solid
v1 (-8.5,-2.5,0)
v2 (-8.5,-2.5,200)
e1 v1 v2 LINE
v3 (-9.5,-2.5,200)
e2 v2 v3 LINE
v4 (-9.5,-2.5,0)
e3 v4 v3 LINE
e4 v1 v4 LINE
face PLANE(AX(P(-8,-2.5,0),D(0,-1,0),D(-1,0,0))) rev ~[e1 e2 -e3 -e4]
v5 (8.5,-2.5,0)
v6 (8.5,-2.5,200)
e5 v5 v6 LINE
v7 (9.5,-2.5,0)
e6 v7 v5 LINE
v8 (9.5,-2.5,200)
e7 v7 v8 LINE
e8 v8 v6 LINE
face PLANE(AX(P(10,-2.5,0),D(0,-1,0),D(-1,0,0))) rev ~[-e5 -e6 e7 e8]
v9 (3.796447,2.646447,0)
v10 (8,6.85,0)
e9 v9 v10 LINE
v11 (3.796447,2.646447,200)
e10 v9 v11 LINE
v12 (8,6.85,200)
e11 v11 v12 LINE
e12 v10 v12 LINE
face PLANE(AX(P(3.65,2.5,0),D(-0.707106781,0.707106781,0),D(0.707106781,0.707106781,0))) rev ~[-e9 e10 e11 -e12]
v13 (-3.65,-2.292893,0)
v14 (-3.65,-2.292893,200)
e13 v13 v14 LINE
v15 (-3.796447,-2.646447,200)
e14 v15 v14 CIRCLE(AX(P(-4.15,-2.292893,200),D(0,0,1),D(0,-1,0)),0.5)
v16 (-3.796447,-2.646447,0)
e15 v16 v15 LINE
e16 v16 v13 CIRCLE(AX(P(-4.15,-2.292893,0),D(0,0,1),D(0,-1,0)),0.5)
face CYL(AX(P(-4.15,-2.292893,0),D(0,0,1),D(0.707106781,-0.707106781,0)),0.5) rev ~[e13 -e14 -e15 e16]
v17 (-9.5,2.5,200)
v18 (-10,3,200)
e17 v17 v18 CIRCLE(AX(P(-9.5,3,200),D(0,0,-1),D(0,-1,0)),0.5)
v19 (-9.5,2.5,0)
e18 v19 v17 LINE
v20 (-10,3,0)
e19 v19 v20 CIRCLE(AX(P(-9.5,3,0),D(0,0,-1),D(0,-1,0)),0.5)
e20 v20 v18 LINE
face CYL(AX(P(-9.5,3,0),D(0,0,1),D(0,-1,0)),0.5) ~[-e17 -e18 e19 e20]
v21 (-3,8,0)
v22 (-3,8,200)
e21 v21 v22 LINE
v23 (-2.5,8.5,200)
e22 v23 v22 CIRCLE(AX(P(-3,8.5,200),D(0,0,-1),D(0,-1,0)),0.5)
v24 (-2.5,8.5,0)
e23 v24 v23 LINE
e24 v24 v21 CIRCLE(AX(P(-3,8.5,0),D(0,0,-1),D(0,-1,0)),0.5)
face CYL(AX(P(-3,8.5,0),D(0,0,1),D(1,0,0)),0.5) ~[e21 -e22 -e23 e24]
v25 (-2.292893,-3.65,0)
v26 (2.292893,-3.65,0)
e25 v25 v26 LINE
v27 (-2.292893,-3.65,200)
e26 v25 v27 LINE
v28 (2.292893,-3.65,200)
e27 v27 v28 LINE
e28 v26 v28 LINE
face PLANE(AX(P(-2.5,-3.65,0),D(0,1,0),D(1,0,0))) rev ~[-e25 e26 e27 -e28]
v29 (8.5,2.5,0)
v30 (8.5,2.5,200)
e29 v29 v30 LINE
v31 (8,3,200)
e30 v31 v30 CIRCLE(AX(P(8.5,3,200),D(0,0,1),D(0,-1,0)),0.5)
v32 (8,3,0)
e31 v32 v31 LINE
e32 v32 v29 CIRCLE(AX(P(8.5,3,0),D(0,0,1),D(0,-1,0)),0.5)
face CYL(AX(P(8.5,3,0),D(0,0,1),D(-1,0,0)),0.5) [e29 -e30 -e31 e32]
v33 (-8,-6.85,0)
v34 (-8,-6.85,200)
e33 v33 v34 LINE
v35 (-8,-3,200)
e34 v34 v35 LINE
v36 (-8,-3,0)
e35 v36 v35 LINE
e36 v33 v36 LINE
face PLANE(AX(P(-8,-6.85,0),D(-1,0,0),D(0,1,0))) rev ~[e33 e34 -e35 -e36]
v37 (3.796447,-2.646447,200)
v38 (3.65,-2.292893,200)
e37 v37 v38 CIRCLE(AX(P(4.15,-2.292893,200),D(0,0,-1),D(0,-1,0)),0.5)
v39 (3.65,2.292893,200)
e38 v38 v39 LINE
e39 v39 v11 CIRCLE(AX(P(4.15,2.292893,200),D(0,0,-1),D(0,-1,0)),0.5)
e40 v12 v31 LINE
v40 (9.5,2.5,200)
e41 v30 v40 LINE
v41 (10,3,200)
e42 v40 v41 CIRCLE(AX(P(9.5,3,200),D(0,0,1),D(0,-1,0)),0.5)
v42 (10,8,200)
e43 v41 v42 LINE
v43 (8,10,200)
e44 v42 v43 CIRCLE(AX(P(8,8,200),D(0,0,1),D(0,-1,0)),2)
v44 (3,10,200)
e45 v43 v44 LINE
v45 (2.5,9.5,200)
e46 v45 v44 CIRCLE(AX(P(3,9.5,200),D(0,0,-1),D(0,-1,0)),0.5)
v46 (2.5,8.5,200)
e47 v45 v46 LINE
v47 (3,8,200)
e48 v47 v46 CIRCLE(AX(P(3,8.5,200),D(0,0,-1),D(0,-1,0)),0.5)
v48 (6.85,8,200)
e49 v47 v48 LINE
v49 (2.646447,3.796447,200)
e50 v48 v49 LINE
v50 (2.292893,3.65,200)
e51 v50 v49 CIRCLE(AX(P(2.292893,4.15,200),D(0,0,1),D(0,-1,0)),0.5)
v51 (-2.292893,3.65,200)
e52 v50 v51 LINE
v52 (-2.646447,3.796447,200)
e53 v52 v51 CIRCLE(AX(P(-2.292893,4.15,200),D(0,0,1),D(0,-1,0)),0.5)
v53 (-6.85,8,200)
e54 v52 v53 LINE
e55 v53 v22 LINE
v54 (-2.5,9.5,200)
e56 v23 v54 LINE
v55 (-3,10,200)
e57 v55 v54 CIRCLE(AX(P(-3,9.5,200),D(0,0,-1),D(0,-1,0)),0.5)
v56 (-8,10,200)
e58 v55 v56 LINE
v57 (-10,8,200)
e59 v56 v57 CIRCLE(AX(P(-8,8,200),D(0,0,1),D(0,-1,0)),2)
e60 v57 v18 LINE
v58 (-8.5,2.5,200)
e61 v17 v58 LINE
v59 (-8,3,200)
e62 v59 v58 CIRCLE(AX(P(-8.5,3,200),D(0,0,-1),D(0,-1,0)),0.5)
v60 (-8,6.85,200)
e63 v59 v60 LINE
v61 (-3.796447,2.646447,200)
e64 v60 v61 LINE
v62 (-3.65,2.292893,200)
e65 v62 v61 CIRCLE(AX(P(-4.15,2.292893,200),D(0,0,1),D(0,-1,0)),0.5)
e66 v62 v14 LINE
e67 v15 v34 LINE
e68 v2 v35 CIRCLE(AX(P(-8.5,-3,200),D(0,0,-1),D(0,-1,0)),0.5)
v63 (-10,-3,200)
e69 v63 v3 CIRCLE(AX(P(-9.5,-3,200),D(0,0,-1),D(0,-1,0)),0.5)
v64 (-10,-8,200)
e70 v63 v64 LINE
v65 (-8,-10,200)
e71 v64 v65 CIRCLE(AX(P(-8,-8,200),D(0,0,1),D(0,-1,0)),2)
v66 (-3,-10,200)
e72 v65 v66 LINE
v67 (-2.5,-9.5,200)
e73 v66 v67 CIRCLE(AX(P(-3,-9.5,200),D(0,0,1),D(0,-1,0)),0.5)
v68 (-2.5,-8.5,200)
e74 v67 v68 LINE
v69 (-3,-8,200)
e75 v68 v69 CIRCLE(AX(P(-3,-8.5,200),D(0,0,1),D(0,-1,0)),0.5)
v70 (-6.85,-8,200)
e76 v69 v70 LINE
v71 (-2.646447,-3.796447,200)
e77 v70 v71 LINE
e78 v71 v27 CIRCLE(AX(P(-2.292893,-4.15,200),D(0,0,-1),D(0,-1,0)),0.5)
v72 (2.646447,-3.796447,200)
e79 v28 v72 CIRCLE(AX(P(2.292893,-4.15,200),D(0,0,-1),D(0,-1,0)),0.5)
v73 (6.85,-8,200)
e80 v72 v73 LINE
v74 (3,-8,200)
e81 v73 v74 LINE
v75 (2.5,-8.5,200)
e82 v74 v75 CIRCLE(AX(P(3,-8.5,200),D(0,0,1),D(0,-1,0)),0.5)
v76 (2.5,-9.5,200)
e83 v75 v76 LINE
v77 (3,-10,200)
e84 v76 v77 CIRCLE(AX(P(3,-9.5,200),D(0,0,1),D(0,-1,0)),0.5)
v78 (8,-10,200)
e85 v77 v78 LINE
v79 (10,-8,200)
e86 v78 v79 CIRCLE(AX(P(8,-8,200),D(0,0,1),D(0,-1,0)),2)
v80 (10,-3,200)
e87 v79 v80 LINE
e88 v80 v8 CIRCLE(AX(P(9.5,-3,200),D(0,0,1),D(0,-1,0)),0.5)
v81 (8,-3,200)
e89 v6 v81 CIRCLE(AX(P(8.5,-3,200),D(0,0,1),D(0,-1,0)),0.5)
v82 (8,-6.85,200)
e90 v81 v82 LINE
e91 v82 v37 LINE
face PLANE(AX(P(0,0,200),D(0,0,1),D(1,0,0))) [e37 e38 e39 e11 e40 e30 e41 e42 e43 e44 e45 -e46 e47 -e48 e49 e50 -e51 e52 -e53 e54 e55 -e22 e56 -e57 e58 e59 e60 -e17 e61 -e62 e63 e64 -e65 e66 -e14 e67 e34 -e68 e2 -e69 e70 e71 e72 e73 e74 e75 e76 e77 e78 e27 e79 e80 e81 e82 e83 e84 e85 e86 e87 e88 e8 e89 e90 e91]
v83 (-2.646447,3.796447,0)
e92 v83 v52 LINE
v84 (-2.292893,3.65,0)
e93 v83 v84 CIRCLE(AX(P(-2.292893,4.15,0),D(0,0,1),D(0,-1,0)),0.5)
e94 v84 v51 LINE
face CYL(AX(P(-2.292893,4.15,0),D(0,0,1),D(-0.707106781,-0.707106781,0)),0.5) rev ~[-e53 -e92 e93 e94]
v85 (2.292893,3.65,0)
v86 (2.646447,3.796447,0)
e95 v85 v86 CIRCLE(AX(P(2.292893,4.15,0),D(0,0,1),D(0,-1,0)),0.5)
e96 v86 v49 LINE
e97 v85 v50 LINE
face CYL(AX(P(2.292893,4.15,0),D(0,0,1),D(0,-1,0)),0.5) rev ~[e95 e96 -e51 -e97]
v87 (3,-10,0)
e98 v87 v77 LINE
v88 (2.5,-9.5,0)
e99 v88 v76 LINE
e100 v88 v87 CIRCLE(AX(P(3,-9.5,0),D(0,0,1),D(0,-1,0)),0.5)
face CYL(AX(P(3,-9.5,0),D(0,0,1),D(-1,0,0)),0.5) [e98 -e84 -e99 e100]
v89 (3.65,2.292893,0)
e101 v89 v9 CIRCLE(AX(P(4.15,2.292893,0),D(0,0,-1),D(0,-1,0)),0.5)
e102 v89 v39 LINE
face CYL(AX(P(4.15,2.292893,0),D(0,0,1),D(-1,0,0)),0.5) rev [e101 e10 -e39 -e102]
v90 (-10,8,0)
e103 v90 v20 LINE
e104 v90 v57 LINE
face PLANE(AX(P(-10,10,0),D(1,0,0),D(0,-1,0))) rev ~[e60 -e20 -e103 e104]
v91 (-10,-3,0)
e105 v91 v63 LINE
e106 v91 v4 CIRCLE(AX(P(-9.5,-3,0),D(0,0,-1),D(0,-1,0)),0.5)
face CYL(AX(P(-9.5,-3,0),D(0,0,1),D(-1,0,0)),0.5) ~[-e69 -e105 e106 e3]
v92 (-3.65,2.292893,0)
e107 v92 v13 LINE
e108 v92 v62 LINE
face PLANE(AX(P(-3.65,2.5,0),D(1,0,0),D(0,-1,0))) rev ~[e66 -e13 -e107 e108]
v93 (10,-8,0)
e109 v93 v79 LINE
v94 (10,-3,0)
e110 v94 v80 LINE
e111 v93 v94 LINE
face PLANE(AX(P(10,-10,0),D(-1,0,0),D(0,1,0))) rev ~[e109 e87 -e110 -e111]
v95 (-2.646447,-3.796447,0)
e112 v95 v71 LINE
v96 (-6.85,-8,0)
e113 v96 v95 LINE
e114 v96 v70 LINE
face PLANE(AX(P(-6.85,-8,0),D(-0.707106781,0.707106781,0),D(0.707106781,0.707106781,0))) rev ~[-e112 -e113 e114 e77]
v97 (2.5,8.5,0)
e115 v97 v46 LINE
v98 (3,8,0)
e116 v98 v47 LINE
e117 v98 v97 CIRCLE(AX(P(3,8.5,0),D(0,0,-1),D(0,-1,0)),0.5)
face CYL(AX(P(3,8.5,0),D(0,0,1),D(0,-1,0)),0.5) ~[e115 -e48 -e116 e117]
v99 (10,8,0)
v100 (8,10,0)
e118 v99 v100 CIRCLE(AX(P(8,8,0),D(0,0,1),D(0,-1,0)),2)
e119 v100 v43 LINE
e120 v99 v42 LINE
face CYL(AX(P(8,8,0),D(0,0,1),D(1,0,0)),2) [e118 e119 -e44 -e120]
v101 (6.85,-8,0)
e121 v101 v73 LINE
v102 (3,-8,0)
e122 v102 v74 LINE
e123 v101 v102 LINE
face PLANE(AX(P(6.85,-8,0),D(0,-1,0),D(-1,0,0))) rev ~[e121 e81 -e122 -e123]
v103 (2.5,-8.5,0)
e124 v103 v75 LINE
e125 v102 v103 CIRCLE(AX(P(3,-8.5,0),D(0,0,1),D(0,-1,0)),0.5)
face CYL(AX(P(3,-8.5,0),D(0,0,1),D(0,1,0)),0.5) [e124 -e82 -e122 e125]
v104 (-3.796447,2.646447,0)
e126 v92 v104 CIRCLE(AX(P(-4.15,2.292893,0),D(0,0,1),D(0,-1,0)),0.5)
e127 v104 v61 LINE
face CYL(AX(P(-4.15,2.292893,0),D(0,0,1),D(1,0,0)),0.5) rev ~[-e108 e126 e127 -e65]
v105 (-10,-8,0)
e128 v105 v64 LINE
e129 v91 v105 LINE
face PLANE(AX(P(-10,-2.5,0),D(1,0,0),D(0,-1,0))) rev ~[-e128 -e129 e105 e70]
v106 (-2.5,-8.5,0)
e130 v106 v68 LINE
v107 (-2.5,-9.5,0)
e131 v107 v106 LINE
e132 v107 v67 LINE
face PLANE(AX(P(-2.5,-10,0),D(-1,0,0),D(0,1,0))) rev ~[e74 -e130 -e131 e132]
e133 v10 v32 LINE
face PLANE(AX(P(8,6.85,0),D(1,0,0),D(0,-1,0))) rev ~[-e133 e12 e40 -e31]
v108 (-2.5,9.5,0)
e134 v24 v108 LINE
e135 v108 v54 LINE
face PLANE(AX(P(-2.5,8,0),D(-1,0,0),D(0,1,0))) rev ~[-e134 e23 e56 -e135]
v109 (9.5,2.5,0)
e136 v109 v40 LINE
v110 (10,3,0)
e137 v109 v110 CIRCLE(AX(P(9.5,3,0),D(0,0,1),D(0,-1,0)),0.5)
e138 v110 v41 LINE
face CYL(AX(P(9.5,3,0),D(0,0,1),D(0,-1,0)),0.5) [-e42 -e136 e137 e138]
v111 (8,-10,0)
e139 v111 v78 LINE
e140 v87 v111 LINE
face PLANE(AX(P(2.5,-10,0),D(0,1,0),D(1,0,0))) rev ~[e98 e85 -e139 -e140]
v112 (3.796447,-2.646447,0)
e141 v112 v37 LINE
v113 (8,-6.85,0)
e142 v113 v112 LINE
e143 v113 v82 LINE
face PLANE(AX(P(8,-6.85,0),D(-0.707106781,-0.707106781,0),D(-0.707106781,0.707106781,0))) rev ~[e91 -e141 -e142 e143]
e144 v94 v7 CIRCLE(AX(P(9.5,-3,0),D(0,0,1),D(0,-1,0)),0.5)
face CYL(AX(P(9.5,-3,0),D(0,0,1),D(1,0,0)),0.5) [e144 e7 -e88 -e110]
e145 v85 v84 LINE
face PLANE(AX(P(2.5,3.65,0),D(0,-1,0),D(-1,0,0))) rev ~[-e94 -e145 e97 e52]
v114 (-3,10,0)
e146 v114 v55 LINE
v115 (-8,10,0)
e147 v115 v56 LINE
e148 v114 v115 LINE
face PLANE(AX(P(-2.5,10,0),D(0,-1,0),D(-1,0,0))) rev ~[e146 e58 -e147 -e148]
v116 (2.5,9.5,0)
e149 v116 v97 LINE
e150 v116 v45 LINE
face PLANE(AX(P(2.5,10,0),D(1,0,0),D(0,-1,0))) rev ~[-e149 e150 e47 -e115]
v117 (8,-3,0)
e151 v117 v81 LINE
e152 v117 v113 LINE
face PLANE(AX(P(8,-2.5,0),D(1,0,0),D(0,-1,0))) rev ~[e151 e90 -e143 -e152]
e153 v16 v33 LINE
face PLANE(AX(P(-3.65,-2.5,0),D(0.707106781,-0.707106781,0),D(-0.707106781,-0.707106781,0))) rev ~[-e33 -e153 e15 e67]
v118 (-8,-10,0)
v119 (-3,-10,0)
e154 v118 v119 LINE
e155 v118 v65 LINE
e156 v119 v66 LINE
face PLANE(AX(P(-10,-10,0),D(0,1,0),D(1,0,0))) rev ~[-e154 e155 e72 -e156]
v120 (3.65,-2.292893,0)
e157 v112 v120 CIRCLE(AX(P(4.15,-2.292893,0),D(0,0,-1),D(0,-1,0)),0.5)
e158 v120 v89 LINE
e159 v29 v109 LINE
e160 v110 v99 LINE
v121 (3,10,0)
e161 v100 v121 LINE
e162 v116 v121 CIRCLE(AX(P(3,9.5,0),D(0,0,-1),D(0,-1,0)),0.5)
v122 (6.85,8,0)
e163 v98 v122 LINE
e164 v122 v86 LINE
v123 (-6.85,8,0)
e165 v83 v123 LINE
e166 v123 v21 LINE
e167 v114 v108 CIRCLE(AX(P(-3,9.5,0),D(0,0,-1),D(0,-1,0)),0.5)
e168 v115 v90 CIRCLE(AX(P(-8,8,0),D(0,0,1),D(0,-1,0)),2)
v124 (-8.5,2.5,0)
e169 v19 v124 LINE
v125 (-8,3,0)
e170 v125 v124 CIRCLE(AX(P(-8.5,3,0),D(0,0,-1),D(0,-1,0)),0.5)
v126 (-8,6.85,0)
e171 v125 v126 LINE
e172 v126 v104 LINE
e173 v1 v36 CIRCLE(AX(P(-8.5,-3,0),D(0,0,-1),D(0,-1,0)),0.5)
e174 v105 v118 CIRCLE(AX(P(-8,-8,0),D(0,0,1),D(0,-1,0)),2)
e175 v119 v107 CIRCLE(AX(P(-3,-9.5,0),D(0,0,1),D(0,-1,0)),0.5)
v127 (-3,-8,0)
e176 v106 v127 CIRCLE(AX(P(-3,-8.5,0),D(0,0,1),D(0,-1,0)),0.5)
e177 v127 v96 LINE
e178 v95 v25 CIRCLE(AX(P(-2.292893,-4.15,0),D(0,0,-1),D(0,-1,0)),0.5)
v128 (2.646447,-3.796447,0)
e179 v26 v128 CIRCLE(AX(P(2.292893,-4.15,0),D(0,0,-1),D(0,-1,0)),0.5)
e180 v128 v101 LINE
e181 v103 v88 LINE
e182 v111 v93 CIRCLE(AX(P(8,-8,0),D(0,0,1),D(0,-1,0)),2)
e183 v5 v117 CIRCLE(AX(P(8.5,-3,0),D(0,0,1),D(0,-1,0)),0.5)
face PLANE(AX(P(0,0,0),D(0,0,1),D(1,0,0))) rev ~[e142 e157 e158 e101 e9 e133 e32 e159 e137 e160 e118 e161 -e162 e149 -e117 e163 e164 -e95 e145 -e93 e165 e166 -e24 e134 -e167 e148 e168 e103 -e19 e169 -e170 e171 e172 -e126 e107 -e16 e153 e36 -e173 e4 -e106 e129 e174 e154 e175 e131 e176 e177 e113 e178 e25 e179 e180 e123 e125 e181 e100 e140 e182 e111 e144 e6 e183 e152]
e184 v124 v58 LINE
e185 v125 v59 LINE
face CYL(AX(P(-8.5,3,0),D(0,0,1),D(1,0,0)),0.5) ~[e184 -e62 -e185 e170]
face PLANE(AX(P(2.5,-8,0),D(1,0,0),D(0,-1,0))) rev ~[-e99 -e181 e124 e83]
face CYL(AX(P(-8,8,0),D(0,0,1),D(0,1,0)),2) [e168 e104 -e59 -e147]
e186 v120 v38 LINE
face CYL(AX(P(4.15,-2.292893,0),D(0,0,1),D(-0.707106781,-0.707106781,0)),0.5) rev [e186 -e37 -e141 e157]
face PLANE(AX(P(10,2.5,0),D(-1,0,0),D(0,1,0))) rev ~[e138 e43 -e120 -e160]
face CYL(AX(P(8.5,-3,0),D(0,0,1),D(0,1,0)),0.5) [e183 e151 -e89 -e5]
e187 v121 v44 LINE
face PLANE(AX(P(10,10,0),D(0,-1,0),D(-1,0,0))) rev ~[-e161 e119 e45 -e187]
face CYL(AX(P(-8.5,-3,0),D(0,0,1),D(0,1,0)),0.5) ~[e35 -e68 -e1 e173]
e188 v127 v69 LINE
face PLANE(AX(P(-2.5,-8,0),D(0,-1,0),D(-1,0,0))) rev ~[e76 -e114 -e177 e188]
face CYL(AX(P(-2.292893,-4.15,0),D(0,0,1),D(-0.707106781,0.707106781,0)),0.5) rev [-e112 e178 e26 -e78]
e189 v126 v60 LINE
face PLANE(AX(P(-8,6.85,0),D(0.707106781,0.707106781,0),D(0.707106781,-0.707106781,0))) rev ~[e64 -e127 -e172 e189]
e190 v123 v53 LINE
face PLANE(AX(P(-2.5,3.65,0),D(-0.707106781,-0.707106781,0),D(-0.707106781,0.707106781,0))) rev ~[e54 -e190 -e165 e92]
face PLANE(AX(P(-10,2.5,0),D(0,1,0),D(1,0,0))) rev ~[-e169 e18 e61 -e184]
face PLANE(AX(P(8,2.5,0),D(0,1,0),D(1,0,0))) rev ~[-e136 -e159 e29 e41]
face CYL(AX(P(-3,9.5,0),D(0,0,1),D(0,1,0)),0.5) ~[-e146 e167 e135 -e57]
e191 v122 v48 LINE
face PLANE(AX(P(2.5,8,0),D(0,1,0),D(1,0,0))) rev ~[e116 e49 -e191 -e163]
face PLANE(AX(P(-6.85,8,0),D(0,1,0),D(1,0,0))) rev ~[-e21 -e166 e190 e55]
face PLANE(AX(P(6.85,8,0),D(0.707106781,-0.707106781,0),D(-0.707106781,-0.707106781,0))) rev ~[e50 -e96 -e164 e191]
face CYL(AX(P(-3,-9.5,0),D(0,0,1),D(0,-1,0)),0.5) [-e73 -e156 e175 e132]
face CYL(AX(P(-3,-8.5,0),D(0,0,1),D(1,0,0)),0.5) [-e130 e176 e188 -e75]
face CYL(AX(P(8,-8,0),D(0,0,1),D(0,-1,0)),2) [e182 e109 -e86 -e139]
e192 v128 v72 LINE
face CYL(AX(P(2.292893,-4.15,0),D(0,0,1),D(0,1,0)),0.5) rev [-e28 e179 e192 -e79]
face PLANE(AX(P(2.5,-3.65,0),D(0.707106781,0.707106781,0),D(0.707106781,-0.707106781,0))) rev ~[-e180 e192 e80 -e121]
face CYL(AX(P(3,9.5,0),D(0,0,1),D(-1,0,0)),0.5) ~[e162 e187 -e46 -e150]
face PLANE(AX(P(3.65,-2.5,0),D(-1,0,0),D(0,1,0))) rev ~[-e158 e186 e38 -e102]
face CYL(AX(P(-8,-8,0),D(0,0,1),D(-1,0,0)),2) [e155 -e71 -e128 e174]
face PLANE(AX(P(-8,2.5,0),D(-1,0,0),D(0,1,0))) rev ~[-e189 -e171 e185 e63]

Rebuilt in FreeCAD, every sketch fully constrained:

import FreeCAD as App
import Part
import Sketcher

V = App.Vector
Q = App.Units.Quantity


def edges_at(feature, points):
    """Names of the edges that pass closest to the given points."""
    edges = feature.Shape.Edges
    near = lambda p: min(range(len(edges)), key=lambda i: edges[i].distToShape(Part.Vertex(*p))[0])
    return sorted({f"Edge{near(p) + 1}" for p in points})


def add_polygon(sketch, points):
    """Adds a closed chain of lines whose ends are joined by coincident constraints."""
    first, n = sketch.GeometryCount, len(points)
    for a, b in zip(points, points[1:] + points[:1]):
        sketch.addGeometry(Part.LineSegment(App.Vector(*a, 0), App.Vector(*b, 0)), False)
    for i in range(n):
        sketch.addConstraint(Sketcher.Constraint("Coincident", first + i, 2, first + (i + 1) % n, 1))

doc = App.newDocument("Part")
params = doc.addObject("Spreadsheet::Sheet", "Params")
for row, (alias, value) in enumerate([
    ("sketch1_width", "2 mm"),
    ("sketch1_width2", "5 mm"),
    ("sketch1_width3", "7.5 mm"),
    ("sketch1_width4", "4.35 mm"),
    ("pad1_length", "200 mm"),
    ("fillet_radius", "2 mm"),
    ("fillet2_radius", "0.5 mm"),
], start=1):
    params.set(f"A{row}", alias)
    params.set(f"B{row}", "=" + value)
    params.setAlias(f"B{row}", alias)

body = doc.addObject("PartDesign::Body", "Body")

sketch1 = body.newObject("Sketcher::SketchObject", "Sketch")
sketch1.AttachmentSupport = (doc.getObject("XY_Plane"), [""])
sketch1.MapMode = "FlatFace"
add_polygon(sketch1, [(-10, 2.5), (-8, 2.5), (-8, 6.8), (-3.6, 2.5), (-3.6, -2.5), (-8, -6.8), (-8, -2.5), (-10, -2.5), (-10, -10), (-2.5, -10), (-2.5, -8), (-6.8, -8), (-2.5, -3.6), (2.5, -3.6), (6.8, -8), (2.5, -8), (2.5, -10), (10, -10), (10, -2.5), (8, -2.5), (8, -6.8), (3.6, -2.5), (3.6, 2.5), (8, 6.8), (8, 2.5), (10, 2.5), (10, 10), (2.5, 10), (2.5, 8), (6.8, 8), (2.5, 3.6), (-2.5, 3.6), (-6.8, 8), (-2.5, 8), (-2.5, 10), (-10, 10)])
sketch1.addConstraint(Sketcher.Constraint("Horizontal", 0))
sketch1.addConstraint(Sketcher.Constraint("Vertical", 1))
sketch1.addConstraint(Sketcher.Constraint("Vertical", 3))
sketch1.addConstraint(Sketcher.Constraint("Vertical", 5))
sketch1.addConstraint(Sketcher.Constraint("Horizontal", 6))
sketch1.addConstraint(Sketcher.Constraint("Vertical", 7))
sketch1.addConstraint(Sketcher.Constraint("Horizontal", 8))
sketch1.addConstraint(Sketcher.Constraint("Vertical", 9))
sketch1.addConstraint(Sketcher.Constraint("Horizontal", 10))
sketch1.addConstraint(Sketcher.Constraint("Horizontal", 12))
sketch1.addConstraint(Sketcher.Constraint("Horizontal", 14))
sketch1.addConstraint(Sketcher.Constraint("Vertical", 15))
sketch1.addConstraint(Sketcher.Constraint("Horizontal", 16))
sketch1.addConstraint(Sketcher.Constraint("Vertical", 17))
sketch1.addConstraint(Sketcher.Constraint("Horizontal", 18))
sketch1.addConstraint(Sketcher.Constraint("Vertical", 19))
sketch1.addConstraint(Sketcher.Constraint("Vertical", 21))
sketch1.addConstraint(Sketcher.Constraint("Vertical", 23))
sketch1.addConstraint(Sketcher.Constraint("Horizontal", 24))
sketch1.addConstraint(Sketcher.Constraint("Vertical", 25))
sketch1.addConstraint(Sketcher.Constraint("Horizontal", 26))
sketch1.addConstraint(Sketcher.Constraint("Vertical", 27))
sketch1.addConstraint(Sketcher.Constraint("Horizontal", 28))
sketch1.addConstraint(Sketcher.Constraint("Horizontal", 30))
sketch1.addConstraint(Sketcher.Constraint("Horizontal", 32))
sketch1.addConstraint(Sketcher.Constraint("Vertical", 33))
sketch1.addConstraint(Sketcher.Constraint("Horizontal", 34))
sketch1.addConstraint(Sketcher.Constraint("Vertical", 35))
sketch1.addConstraint(Sketcher.Constraint("Symmetric", 0, 2, 18, 2, -1, 1))
sketch1.addConstraint(Sketcher.Constraint("Symmetric", 2, 2, 20, 2, -1, 1))
sketch1.addConstraint(Sketcher.Constraint("Symmetric", 4, 2, 22, 2, -1, 1))
sketch1.addConstraint(Sketcher.Constraint("Symmetric", 6, 2, 24, 2, -1, 1))
sketch1.addConstraint(Sketcher.Constraint("Symmetric", 8, 2, 26, 2, -1, 1))
sketch1.addConstraint(Sketcher.Constraint("Symmetric", 10, 2, 28, 2, -1, 1))
sketch1.addConstraint(Sketcher.Constraint("Symmetric", 11, 2, 29, 2, -1, 1))
sketch1.addConstraint(Sketcher.Constraint("Symmetric", 13, 2, 31, 2, -1, 1))
sketch1.addConstraint(Sketcher.Constraint("Symmetric", 15, 2, 33, 2, -1, 1))
sketch1.addConstraint(Sketcher.Constraint("Symmetric", 10, 2, 13, 2, -2))
sketch1.addConstraint(Sketcher.Constraint("Symmetric", 8, 2, 15, 2, -2))
sketch1.addConstraint(Sketcher.Constraint("Symmetric", 6, 2, 17, 2, -2))
sketch1.addConstraint(Sketcher.Constraint("Symmetric", 4, 2, 19, 2, -2))
sketch1.addConstraint(Sketcher.Constraint("Perpendicular", 2, 4))
sketch1.addConstraint(Sketcher.Constraint("Parallel", 4, 11))
sketch1.addConstraint(Sketcher.Constraint("Perpendicular", 11, 13))
sketch1.addConstraint(Sketcher.Constraint("Parallel", 13, 20))
sketch1.addConstraint(Sketcher.Constraint("Perpendicular", 20, 22))
sketch1.addConstraint(Sketcher.Constraint("Perpendicular", 29, 31))
sketch1.addConstraint(Sketcher.Constraint("Horizontal", 0, 2, 2, 2))
sketch1.addConstraint(Sketcher.Constraint("Horizontal", 3, 2, 5, 2))
sketch1.addConstraint(Sketcher.Constraint("Vertical", 9, 2, 11, 2))
sketch1.addConstraint(Sketcher.Constraint("Vertical", 7, 2, 34, 2))
sketch1.addConstraint(Sketcher.Constraint("Equal", 32, 1))
sketch1.addConstraint(Sketcher.Constraint("Equal", 30, 3))
sketch1.addConstraint(Sketcher.Constraint("Equal", 34, 7))
sketch1.addConstraint(Sketcher.Constraint("Equal", 24, 9))
sketch1.addConstraint(Sketcher.Constraint("DistanceX", 0, 1, 0, 2, Q("2 mm")))
sketch1.addConstraint(Sketcher.Constraint("DistanceX", 12, 1, 12, 2, Q("5 mm")))
sketch1.addConstraint(Sketcher.Constraint("DistanceX", 8, 1, 8, 2, Q("7.5 mm")))
sketch1.addConstraint(Sketcher.Constraint("DistanceX", 10, 2, 10, 1, Q("4.35 mm")))
sketch1.setExpression("Constraints[91]", "Params.sketch1_width")
sketch1.setExpression("Constraints[92]", "Params.sketch1_width2")
sketch1.setExpression("Constraints[93]", "Params.sketch1_width3")
sketch1.setExpression("Constraints[94]", "Params.sketch1_width4")
pad1 = body.newObject("PartDesign::Pad", "Pad")
pad1.Profile = sketch1
pad1.setExpression("Length", "Params.pad1_length")
doc.recompute()

fillet = body.newObject("PartDesign::Fillet", "Fillet")
fillet.Base = (pad1, edges_at(pad1, [
    (-10, 10, 100),
    (-10, -10, 100),
    (10, -10, 100),
    (10, 10, 100),
]))
fillet.setExpression("Radius", "Params.fillet_radius")
doc.recompute()

fillet2 = body.newObject("PartDesign::Fillet", "Fillet001")
fillet2.Base = (fillet, edges_at(fillet, [
    (-2.5, 10, 100),
    (-10, 2.5, 100),
    (-8, 2.5, 100),
    (-3.65, 2.5, 100),
    (-3.65, -2.5, 100),
    (-8, -2.5, 100),
    (-10, -2.5, 100),
    (-2.5, -10, 100),
    (-2.5, -8, 100),
    (-2.5, -3.65, 100),
    (2.5, -3.65, 100),
    (2.5, -8, 100),
    (2.5, -10, 100),
    (10, -2.5, 100),
    (8, -2.5, 100),
    (3.65, -2.5, 100),
    (3.65, 2.5, 100),
    (8, 2.5, 100),
    (10, 2.5, 100),
    (2.5, 10, 100),
    (2.5, 8, 100),
    (2.5, 3.65, 100),
    (-2.5, 3.65, 100),
    (-2.5, 8, 100),
]))
fillet2.setExpression("Radius", "Params.fillet2_radius")

doc.recompute()
